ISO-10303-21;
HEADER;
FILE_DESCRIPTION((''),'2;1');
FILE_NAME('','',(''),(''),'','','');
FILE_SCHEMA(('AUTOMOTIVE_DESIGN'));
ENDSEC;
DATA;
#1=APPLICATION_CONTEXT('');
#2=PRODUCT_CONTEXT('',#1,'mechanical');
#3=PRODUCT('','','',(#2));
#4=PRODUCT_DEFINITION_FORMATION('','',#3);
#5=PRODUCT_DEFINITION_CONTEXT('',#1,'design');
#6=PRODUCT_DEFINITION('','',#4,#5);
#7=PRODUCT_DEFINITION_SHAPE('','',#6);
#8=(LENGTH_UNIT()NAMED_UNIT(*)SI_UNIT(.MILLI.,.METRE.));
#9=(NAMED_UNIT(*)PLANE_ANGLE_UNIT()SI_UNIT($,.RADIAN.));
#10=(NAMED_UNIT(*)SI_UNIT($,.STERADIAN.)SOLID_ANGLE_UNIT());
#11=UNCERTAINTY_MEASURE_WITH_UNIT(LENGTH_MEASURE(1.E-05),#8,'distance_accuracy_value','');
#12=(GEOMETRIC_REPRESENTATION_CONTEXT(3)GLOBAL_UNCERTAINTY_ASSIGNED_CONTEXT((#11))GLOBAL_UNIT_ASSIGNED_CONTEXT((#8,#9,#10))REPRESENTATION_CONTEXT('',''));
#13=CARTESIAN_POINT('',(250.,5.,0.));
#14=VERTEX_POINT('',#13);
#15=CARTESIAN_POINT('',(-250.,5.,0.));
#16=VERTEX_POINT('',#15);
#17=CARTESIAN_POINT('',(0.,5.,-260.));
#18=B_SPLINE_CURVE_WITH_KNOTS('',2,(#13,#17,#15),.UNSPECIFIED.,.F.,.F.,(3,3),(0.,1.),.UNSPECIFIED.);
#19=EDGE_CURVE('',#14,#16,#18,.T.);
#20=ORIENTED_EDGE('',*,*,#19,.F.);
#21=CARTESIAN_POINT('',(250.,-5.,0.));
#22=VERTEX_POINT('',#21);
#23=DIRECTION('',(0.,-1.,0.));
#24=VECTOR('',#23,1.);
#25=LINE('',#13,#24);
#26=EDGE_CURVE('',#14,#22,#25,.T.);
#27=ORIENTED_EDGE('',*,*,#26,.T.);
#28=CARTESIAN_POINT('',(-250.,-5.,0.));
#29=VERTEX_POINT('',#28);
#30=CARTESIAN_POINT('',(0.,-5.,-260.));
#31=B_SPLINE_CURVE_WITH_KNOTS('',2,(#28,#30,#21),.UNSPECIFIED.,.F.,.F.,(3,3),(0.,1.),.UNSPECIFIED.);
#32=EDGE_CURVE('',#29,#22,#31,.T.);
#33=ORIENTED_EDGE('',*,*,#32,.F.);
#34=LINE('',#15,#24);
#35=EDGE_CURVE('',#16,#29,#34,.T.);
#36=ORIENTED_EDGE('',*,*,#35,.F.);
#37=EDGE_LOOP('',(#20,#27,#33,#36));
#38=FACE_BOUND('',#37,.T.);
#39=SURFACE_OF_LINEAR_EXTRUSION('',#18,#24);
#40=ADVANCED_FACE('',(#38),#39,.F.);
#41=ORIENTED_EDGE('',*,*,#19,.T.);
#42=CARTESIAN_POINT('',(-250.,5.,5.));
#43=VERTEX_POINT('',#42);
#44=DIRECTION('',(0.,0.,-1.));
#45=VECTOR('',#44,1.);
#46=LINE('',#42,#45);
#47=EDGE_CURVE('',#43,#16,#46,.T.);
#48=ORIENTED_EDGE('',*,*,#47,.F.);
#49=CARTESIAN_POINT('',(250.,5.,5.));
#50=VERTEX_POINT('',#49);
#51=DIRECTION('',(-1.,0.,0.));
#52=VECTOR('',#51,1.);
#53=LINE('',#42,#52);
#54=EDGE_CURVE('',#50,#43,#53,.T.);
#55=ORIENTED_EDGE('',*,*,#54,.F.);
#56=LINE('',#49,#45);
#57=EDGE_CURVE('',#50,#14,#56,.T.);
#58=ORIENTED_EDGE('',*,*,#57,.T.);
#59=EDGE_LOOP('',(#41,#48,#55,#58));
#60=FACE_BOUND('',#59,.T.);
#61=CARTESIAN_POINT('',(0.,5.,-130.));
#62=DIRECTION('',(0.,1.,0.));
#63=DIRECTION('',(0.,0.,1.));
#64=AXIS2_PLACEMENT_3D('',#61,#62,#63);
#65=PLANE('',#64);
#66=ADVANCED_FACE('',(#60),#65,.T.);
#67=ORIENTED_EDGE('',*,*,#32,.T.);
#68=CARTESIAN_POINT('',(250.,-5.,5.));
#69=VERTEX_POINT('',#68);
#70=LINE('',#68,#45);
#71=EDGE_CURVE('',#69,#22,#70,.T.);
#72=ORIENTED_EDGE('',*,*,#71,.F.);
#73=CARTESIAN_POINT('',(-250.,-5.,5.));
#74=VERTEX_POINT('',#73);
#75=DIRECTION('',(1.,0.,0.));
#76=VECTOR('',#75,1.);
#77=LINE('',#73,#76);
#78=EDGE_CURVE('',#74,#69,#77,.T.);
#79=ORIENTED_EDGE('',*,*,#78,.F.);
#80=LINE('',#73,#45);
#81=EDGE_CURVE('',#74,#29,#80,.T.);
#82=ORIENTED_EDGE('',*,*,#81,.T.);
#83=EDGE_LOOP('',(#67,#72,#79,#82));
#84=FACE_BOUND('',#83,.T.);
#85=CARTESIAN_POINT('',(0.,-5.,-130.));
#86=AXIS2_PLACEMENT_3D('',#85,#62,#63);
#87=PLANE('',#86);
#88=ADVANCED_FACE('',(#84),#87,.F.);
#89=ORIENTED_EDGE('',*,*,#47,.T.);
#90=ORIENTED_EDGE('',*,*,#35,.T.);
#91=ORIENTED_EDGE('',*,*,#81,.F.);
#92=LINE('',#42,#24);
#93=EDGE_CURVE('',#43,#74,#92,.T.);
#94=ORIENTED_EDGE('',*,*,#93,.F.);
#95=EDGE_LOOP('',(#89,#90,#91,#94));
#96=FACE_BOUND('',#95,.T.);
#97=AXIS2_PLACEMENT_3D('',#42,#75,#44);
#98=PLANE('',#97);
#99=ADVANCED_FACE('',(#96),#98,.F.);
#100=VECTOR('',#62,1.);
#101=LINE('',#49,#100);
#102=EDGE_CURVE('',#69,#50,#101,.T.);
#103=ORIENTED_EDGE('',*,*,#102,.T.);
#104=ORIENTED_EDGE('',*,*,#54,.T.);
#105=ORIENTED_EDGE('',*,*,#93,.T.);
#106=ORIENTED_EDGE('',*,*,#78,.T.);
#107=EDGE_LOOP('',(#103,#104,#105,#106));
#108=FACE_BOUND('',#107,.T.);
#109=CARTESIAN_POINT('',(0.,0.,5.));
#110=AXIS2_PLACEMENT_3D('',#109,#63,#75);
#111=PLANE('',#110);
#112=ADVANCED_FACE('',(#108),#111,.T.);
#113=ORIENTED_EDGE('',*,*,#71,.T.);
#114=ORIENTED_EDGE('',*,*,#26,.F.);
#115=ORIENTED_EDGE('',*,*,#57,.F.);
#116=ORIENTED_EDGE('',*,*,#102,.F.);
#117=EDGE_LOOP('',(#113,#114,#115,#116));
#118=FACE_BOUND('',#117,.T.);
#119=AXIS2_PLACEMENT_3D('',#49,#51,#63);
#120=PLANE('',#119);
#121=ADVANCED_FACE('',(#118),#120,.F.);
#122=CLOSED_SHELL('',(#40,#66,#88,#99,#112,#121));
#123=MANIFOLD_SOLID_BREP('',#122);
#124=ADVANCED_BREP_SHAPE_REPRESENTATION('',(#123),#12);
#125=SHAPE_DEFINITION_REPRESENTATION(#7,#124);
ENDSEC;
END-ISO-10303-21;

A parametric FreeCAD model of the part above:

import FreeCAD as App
import Part
import Sketcher

V = App.Vector
Q = App.Units.Quantity

doc = App.newDocument("Part")
params = doc.addObject("Spreadsheet::Sheet", "Params")
for row, (alias, value) in enumerate([
    ("pad1_length", "5 mm"),
    ("pad2_length", "5 mm"),
    ("sketch3_width", "500 mm"),
    ("sketch3_height", "10 mm"),
    ("pad3_length", "5 mm"),
], start=1):
    params.set(f"A{row}", alias)
    params.set(f"B{row}", "=" + value)
    params.setAlias(f"B{row}", alias)

body = doc.addObject("PartDesign::Body", "Body")

sketch1 = body.newObject("Sketcher::SketchObject", "Sketch")
sketch1.AttachmentSupport = (doc.getObject("XZ_Plane"), [""])
sketch1.MapMode = "FlatFace"
sketch1.addGeometry([
    Part.BSplineCurve([V(-250, 0, 0), V(0, -260, 0), V(250, 0, 0)], [3, 3], [0, 1], False, 2, [1, 1, 1], False),
    Part.LineSegment(V(-250, 0, 0), V(250, 0, 0)),
], False)
sketch1.addConstraint([
    Sketcher.Constraint("Block", 0),
    Sketcher.Constraint("Coincident", 0, 1, 1, 1),
    Sketcher.Constraint("Coincident", 1, 2, 0, 2),
])
pad1 = body.newObject("PartDesign::Pad", "Pad")
pad1.Profile = sketch1
pad1.setExpression("Length", "Params.pad1_length")
pad1.Reversed = True

sketch2 = body.newObject("Sketcher::SketchObject", "Sketch001")
sketch2.AttachmentSupport = (doc.getObject("XZ_Plane"), [""])
sketch2.MapMode = "FlatFace"
sketch2.addGeometry([
    Part.LineSegment(V(250, 0, 0), V(-250, 0, 0)),
    Part.BSplineCurve([V(-250, 0, 0), V(0, -260, 0), V(250, 0, 0)], [3, 3], [0, 1], False, 2, [1, 1, 1], False),
], False)
sketch2.addConstraint([
    Sketcher.Constraint("Block", 1),
    Sketcher.Constraint("Coincident", 0, 1, 1, 2),
    Sketcher.Constraint("Coincident", 1, 1, 0, 2),
])
pad2 = body.newObject("PartDesign::Pad", "Pad001")
pad2.Profile = sketch2
pad2.setExpression("Length", "Params.pad2_length")

sketch3 = body.newObject("Sketcher::SketchObject", "Sketch002")
sketch3.AttachmentSupport = (doc.getObject("XY_Plane"), [""])
sketch3.MapMode = "FlatFace"
sketch3.addGeometry([
    Part.LineSegment(V(-250, 5, 0), V(-250, -5, 0)),
    Part.LineSegment(V(-250, -5, 0), V(250, -5, 0)),
    Part.LineSegment(V(250, -5, 0), V(250, 5, 0)),
    Part.LineSegment(V(250, 5, 0), V(-250, 5, 0)),
], False)
sketch3.addConstraint([
    Sketcher.Constraint("Coincident", 0, 2, 1, 1),
    Sketcher.Constraint("Coincident", 1, 2, 2, 1),
    Sketcher.Constraint("Coincident", 2, 2, 3, 1),
    Sketcher.Constraint("Coincident", 3, 2, 0, 1),
    Sketcher.Constraint("Vertical", 0),
    Sketcher.Constraint("Horizontal", 1),
    Sketcher.Constraint("Vertical", 2),
    Sketcher.Constraint("Horizontal", 3),
    Sketcher.Constraint("Symmetric", 0, 2, 2, 2, -1, 1),
    Sketcher.Constraint("DistanceX", 1, 1, 1, 2, Q("500 mm")),
    Sketcher.Constraint("DistanceY", 0, 2, 0, 1, Q("10 mm")),
])
sketch3.setExpression("Constraints[9]", "Params.sketch3_width")
sketch3.setExpression("Constraints[10]", "Params.sketch3_height")
pad3 = body.newObject("PartDesign::Pad", "Pad002")
pad3.Profile = sketch3
pad3.setExpression("Length", "Params.pad3_length")

doc.recompute()
